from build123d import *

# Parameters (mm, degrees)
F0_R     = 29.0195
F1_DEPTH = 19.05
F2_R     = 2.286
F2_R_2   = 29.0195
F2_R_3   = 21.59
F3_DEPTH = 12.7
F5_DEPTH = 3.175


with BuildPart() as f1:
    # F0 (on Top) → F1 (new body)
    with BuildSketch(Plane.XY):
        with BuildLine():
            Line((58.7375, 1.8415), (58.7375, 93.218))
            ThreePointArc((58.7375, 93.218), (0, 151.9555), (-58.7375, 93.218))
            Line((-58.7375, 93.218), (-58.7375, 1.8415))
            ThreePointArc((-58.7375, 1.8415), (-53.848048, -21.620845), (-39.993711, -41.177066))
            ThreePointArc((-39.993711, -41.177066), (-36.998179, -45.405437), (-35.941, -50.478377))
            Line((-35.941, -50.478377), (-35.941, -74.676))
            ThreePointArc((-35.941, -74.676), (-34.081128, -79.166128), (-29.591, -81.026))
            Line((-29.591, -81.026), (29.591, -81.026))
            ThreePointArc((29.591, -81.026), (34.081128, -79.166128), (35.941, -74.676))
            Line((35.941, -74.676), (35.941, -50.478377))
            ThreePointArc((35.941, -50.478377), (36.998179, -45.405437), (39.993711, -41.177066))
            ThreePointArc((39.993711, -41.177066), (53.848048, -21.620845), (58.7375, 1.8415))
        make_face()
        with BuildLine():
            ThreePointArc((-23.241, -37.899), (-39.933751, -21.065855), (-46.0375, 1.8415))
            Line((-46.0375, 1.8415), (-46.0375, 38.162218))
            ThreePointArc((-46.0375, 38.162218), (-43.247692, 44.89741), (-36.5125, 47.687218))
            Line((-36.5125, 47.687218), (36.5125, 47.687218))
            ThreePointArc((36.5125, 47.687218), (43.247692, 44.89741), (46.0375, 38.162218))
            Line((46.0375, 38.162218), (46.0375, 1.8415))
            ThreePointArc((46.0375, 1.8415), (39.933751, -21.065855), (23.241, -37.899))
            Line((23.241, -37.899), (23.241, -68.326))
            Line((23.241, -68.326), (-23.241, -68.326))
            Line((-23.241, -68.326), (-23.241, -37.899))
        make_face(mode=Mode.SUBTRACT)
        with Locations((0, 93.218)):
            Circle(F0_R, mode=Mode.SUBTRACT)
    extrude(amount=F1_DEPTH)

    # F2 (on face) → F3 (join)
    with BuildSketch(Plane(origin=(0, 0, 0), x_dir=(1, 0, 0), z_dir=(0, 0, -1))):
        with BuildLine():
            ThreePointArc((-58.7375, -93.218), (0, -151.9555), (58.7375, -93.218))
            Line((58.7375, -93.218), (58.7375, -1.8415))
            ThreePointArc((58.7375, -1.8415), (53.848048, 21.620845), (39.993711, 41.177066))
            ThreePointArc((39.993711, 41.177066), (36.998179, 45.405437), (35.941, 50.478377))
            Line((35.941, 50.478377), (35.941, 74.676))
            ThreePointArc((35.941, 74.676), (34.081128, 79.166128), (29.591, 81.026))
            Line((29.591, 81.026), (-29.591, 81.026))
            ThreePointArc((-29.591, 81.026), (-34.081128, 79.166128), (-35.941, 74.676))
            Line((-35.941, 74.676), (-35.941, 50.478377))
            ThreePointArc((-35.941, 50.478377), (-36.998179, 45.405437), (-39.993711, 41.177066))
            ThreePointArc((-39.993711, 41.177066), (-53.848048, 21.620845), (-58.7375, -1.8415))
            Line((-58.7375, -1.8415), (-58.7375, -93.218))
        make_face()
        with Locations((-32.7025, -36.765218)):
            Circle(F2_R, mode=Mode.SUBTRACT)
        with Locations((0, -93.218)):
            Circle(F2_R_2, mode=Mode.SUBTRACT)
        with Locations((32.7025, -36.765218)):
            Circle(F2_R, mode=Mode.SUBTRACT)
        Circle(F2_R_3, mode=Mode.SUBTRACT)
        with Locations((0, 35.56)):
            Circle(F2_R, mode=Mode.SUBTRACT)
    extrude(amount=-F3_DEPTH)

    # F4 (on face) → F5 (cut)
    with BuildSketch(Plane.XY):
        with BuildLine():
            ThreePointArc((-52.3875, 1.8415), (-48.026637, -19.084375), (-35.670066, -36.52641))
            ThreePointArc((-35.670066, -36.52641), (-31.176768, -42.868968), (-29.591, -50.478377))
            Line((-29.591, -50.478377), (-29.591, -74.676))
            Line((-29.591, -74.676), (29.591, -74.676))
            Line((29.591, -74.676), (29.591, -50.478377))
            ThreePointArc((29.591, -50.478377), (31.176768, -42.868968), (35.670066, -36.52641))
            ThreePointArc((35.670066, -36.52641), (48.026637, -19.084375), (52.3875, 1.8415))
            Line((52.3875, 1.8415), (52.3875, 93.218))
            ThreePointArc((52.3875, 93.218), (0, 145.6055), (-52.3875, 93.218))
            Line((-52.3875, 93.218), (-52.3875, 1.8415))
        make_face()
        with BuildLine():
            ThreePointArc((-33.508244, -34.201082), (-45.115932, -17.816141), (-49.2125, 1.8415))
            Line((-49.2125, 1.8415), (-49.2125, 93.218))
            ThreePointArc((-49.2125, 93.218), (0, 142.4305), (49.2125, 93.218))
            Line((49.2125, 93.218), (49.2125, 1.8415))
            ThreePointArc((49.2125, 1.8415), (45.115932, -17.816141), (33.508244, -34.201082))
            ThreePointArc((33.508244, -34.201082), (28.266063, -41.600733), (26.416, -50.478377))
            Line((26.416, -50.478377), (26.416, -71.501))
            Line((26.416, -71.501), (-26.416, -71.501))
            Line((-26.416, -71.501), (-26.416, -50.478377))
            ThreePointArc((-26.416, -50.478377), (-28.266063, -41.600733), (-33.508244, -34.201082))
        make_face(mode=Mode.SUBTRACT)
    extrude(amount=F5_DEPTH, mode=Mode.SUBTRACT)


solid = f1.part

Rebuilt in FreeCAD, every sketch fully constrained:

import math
import FreeCAD as App
import Part
import Sketcher
from FreeCAD import Vector
Q = App.Units.Quantity

doc = App.newDocument("Part")
body = doc.addObject("PartDesign::Body", "Body")

sketch1 = doc.addObject("Sketcher::SketchObject", "Sketch")
body.addObject(sketch1)
sketch1.AttachmentSupport = (doc.XY_Plane, [""])
sketch1.MapMode = "FlatFace"
sketch1.addGeometry([
    Part.LineSegment(Vector(58.7375, 1.8415, 0), Vector(58.7375, 93.218, 0)),
    Part.ArcOfCircle(Part.Circle(Vector(0, 93.218, 0), Vector(0, 0, 1), 58.7375), math.radians(0), math.radians(180)),
    Part.LineSegment(Vector(-58.7375, 93.218, 0), Vector(-58.7375, 1.8415, 0)),
    Part.ArcOfCircle(Part.Circle(Vector(0.000002, 1.8415, 0), Vector(0, 0, 1), 58.737502), math.radians(-180), math.radians(-132.913144)),
    Part.ArcOfCircle(Part.Circle(Vector(-48.640998, -50.478376, 0), Vector(0, 0, 1), 12.699998), math.radians(-0.000002), math.radians(47.08686)),
    Part.LineSegment(Vector(-35.941, -50.478377, 0), Vector(-35.941, -74.676, 0)),
    Part.ArcOfCircle(Part.Circle(Vector(-29.591, -74.676, 0), Vector(0, 0, 1), 6.35), math.radians(-179.999998), math.radians(-90.000002)),
    Part.LineSegment(Vector(-29.591, -81.026, 0), Vector(29.591, -81.026, 0)),
    Part.ArcOfCircle(Part.Circle(Vector(29.591, -74.676, 0), Vector(0, 0, 1), 6.35), math.radians(-89.999998), math.radians(-0.000002)),
    Part.LineSegment(Vector(35.941, -74.676, 0), Vector(35.941, -50.478377, 0)),
    Part.ArcOfCircle(Part.Circle(Vector(48.640998, -50.478376, 0), Vector(0, 0, 1), 12.699998), math.radians(132.91314), math.radians(180.000002)),
    Part.ArcOfCircle(Part.Circle(Vector(-0.000002, 1.8415, 0), Vector(0, 0, 1), 58.737502), math.radians(-47.086856), math.radians(0)),
    Part.LineSegment(Vector(-23.241, -68.326, 0), Vector(-23.241, -37.899, 0)),
    Part.ArcOfCircle(Part.Circle(Vector(0.000002, 1.841501, 0), Vector(0, 0, 1), 46.037502), math.radians(-179.999999), math.radians(-120.319909)),
    Part.LineSegment(Vector(-46.0375, 1.8415, 0), Vector(-46.0375, 38.162218, 0)),
    Part.ArcOfCircle(Part.Circle(Vector(-36.5125, 38.162218, 0), Vector(0, 0, 1), 9.525), math.radians(90.000002), math.radians(179.999998)),
    Part.LineSegment(Vector(-36.5125, 47.687218, 0), Vector(36.5125, 47.687218, 0)),
    Part.ArcOfCircle(Part.Circle(Vector(36.5125, 38.162218, 0), Vector(0, 0, 1), 9.525), math.radians(0.000002), math.radians(89.999998)),
    Part.LineSegment(Vector(46.0375, 38.162218, 0), Vector(46.0375, 1.8415, 0)),
    Part.ArcOfCircle(Part.Circle(Vector(-0.000002, 1.841501, 0), Vector(0, 0, 1), 46.037502), math.radians(-59.680091), math.radians(-0.000001)),
    Part.LineSegment(Vector(23.241, -37.899, 0), Vector(23.241, -68.326, 0)),
    Part.LineSegment(Vector(23.241, -68.326, 0), Vector(-23.241, -68.326, 0)),
    Part.Circle(Vector(0, 93.218, 0), Vector(0, 0, 1), 29.0195),
], False)
sketch1.addConstraint([
    Sketcher.Constraint("Tangent", 0, 2, 1, 1),
    Sketcher.Constraint("Tangent", 1, 2, 2, 1),
    Sketcher.Constraint("Tangent", 2, 2, 3, 1),
    Sketcher.Constraint("Tangent", 3, 2, 4, 2),
    Sketcher.Constraint("Tangent", 4, 1, 5, 1),
    Sketcher.Constraint("Tangent", 5, 2, 6, 1),
    Sketcher.Constraint("Tangent", 6, 2, 7, 1),
    Sketcher.Constraint("Tangent", 7, 2, 8, 1),
    Sketcher.Constraint("Tangent", 8, 2, 9, 1),
    Sketcher.Constraint("Tangent", 9, 2, 10, 2),
    Sketcher.Constraint("Tangent", 10, 1, 11, 1),
    Sketcher.Constraint("Tangent", 11, 2, 0, 1),
    Sketcher.Constraint("Coincident", 12, 2, 13, 2),
    Sketcher.Constraint("Tangent", 13, 1, 14, 1),
    Sketcher.Constraint("Tangent", 14, 2, 15, 2),
    Sketcher.Constraint("Tangent", 15, 1, 16, 1),
    Sketcher.Constraint("Tangent", 16, 2, 17, 2),
    Sketcher.Constraint("Tangent", 17, 1, 18, 1),
    Sketcher.Constraint("Tangent", 18, 2, 19, 2),
    Sketcher.Constraint("Coincident", 19, 1, 20, 1),
    Sketcher.Constraint("Coincident", 20, 2, 21, 1),
    Sketcher.Constraint("Coincident", 21, 2, 12, 1),
    Sketcher.Constraint("Vertical", 0),
    Sketcher.Constraint("Vertical", 2),
    Sketcher.Constraint("Vertical", 5),
    Sketcher.Constraint("Horizontal", 7),
    Sketcher.Constraint("Vertical", 9),
    Sketcher.Constraint("Vertical", 12),
    Sketcher.Constraint("Vertical", 14),
    Sketcher.Constraint("Horizontal", 16),
    Sketcher.Constraint("Vertical", 18),
    Sketcher.Constraint("Vertical", 20),
    Sketcher.Constraint("Horizontal", 21),
    Sketcher.Constraint("Coincident", 11, 3, 3, 3),
    Sketcher.Constraint("Coincident", 13, 3, 3, 3),
    Sketcher.Constraint("Coincident", 19, 3, 3, 3),
    Sketcher.Constraint("Coincident", 22, 3, 1, 3),
    Sketcher.Constraint("Equal", 1, 3),
    Sketcher.Constraint("Equal", 6, 8),
    Sketcher.Constraint("Equal", 4, 10),
    Sketcher.Constraint("Equal", 15, 17),
    Sketcher.Constraint("Equal", 13, 19),
    Sketcher.Constraint("Symmetric", 4, 3, 10, 3, -2),
    Sketcher.Constraint("Horizontal", 12, 2, 19, 1),
    Sketcher.Constraint("Radius", 4, Q("0.4999999 in")),
    Sketcher.Constraint("Radius", 6, Q("0.25 in")),
    Sketcher.Constraint("Diameter", 22, Q("2.285 in")),
    Sketcher.Constraint("Radius", 1, Q("2.3125 in")),
    Sketcher.Constraint("Radius", 13, Q("1.8125001 in")),
    Sketcher.Constraint("Radius", 15, Q("0.375 in")),
    Sketcher.Constraint("DistanceX", 4, 3, 12, 2, Q("0.9999999 in")),
    Sketcher.Constraint("DistanceX", 7, 1, 7, 2, Q("2.33 in")),
    Sketcher.Constraint("DistanceY", 7, 2, 20, 2, Q("0.5 in")),
    Sketcher.Constraint("DistanceY", -1, 1, 1, 3, Q("3.67 in")),
    Sketcher.Constraint("DistanceY", 6, 3, -1, 1, Q("2.94 in")),
    Sketcher.Constraint("DistanceY", 0, 1, 0, 2, Q("3.5975 in")),
    Sketcher.Constraint("DistanceY", 14, 1, 14, 2, 36.320718),
])
pad1 = doc.addObject("PartDesign::Pad", "Pad")
body.addObject(pad1)
pad1.Profile = sketch1
pad1.Length = Q("0.75 in")

sketch2 = doc.addObject("Sketcher::SketchObject", "Sketch001")
body.addObject(sketch2)
sketch2.AttachmentSupport = (doc.XY_Plane, [""])
sketch2.MapMode = "FlatFace"
sketch2.addGeometry([
    Part.ArcOfCircle(Part.Circle(Vector(0, 93.218, 0), Vector(0, 0, 1), 58.7375), math.radians(0), math.radians(180)),
    Part.LineSegment(Vector(58.7375, 93.218, 0), Vector(58.7375, 1.8415, 0)),
    Part.ArcOfCircle(Part.Circle(Vector(-0.000002, 1.8415, 0), Vector(0, 0, 1), 58.737502), math.radians(-47.086856), math.radians(0)),
    Part.ArcOfCircle(Part.Circle(Vector(48.640998, -50.478376, 0), Vector(0, 0, 1), 12.699998), math.radians(132.91314), math.radians(180.000002)),
    Part.LineSegment(Vector(35.941, -50.478377, 0), Vector(35.941, -74.676, 0)),
    Part.ArcOfCircle(Part.Circle(Vector(29.591, -74.676, 0), Vector(0, 0, 1), 6.35), math.radians(-89.999998), math.radians(-0.000002)),
    Part.LineSegment(Vector(29.591, -81.026, 0), Vector(-29.591, -81.026, 0)),
    Part.ArcOfCircle(Part.Circle(Vector(-29.591, -74.676, 0), Vector(0, 0, 1), 6.35), math.radians(-179.999998), math.radians(-90.000002)),
    Part.LineSegment(Vector(-35.941, -74.676, 0), Vector(-35.941, -50.478377, 0)),
    Part.ArcOfCircle(Part.Circle(Vector(-48.640998, -50.478376, 0), Vector(0, 0, 1), 12.699998), math.radians(-0.000002), math.radians(47.08686)),
    Part.ArcOfCircle(Part.Circle(Vector(0.000002, 1.8415, 0), Vector(0, 0, 1), 58.737502), math.radians(-180), math.radians(-132.913144)),
    Part.LineSegment(Vector(-58.7375, 1.8415, 0), Vector(-58.7375, 93.218, 0)),
    Part.Circle(Vector(0, 93.218, 0), Vector(0, 0, 1), 29.0195),
    Part.Circle(Vector(-32.7025, 36.765218, 0), Vector(0, 0, 1), 2.286),
    Part.Circle(Vector(32.7025, 36.765218, 0), Vector(0, 0, 1), 2.286),
    Part.Circle(Vector(0, 0, 0), Vector(0, 0, 1), 21.59),
    Part.Circle(Vector(0, -35.56, 0), Vector(0, 0, 1), 2.286),
], False)
sketch2.addConstraint([
    Sketcher.Constraint("Tangent", 0, 1, 1, 1),
    Sketcher.Constraint("Tangent", 1, 2, 2, 2),
    Sketcher.Constraint("Tangent", 2, 1, 3, 1),
    Sketcher.Constraint("Tangent", 3, 2, 4, 1),
    Sketcher.Constraint("Tangent", 4, 2, 5, 2),
    Sketcher.Constraint("Tangent", 5, 1, 6, 1),
    Sketcher.Constraint("Tangent", 6, 2, 7, 2),
    Sketcher.Constraint("Tangent", 7, 1, 8, 1),
    Sketcher.Constraint("Tangent", 8, 2, 9, 1),
    Sketcher.Constraint("Tangent", 9, 2, 10, 2),
    Sketcher.Constraint("Tangent", 10, 1, 11, 1),
    Sketcher.Constraint("Tangent", 11, 2, 0, 2),
    Sketcher.Constraint("Vertical", 1),
    Sketcher.Constraint("Vertical", 4),
    Sketcher.Constraint("Horizontal", 6),
    Sketcher.Constraint("Vertical", 8),
    Sketcher.Constraint("Vertical", 11),
    Sketcher.Constraint("Coincident", 15, 3, -1, 1),
    Sketcher.Constraint("Coincident", 10, 3, 2, 3),
    Sketcher.Constraint("Coincident", 12, 3, 0, 3),
    Sketcher.Constraint("Equal", 0, 2),
    Sketcher.Constraint("Equal", 5, 7),
    Sketcher.Constraint("Equal", 3, 9),
    Sketcher.Constraint("Equal", 13, 14),
    Sketcher.Constraint("Equal", 14, 16),
    Sketcher.Constraint("Symmetric", 3, 3, 9, 3, -2),
    Sketcher.Constraint("Symmetric", 13, 3, 14, 3, -2),
    Sketcher.Constraint("PointOnObject", 16, 3, -2),
    Sketcher.Constraint("Diameter", 15, Q("1.7 in")),
    Sketcher.Constraint("Radius", 3, Q("0.4999999 in")),
    Sketcher.Constraint("Diameter", 13, Q("0.18 in")),
    Sketcher.Constraint("Radius", 5, Q("0.25 in")),
    Sketcher.Constraint("Diameter", 12, Q("2.285 in")),
    Sketcher.Constraint("Radius", 0, Q("2.3125 in")),
    Sketcher.Constraint("DistanceX", 6, 2, 6, 1, Q("2.33 in")),
    Sketcher.Constraint("DistanceY", 16, 3, -1, 1, Q("1.4 in")),
    Sketcher.Constraint("DistanceX", 13, 3, 0, 1, Q("3.6 in")),
    Sketcher.Constraint("DistanceY", -1, 1, 0, 3, Q("3.67 in")),
    Sketcher.Constraint("DistanceY", 5, 3, -1, 1, Q("2.94 in")),
    Sketcher.Constraint("DistanceY", 1, 2, 1, 1, Q("3.5975 in")),
    Sketcher.Constraint("DistanceY", -1, 1, 13, 3, 36.765218),
])
pad2 = doc.addObject("PartDesign::Pad", "Pad001")
body.addObject(pad2)
pad2.Profile = sketch2
pad2.Length = Q("0.5 in")

sketch3 = doc.addObject("Sketcher::SketchObject", "Sketch002")
body.addObject(sketch3)
sketch3.AttachmentSupport = (doc.XY_Plane, [""])
sketch3.MapMode = "FlatFace"
sketch3.addGeometry([
    Part.ArcOfCircle(Part.Circle(Vector(0.000004, 1.841502, 0), Vector(0, 0, 1), 52.387504), math.radians(-179.999998), math.radians(-132.913144)),
    Part.ArcOfCircle(Part.Circle(Vector(-48.641001, -50.478377, 0), Vector(0, 0, 1), 19.050001), math.radians(-0.000001), math.radians(47.086853)),
    Part.LineSegment(Vector(-29.591, -50.478377, 0), Vector(-29.591, -74.676, 0)),
    Part.LineSegment(Vector(-29.591, -74.676, 0), Vector(29.591, -74.676, 0)),
    Part.LineSegment(Vector(29.591, -74.676, 0), Vector(29.591, -50.478377, 0)),
    Part.ArcOfCircle(Part.Circle(Vector(48.641001, -50.478377, 0), Vector(0, 0, 1), 19.050001), math.radians(132.913147), math.radians(180.000001)),
    Part.ArcOfCircle(Part.Circle(Vector(-0.000004, 1.841502, 0), Vector(0, 0, 1), 52.387504), math.radians(-47.086856), math.radians(-0.000002)),
    Part.LineSegment(Vector(52.3875, 1.8415, 0), Vector(52.3875, 93.218, 0)),
    Part.ArcOfCircle(Part.Circle(Vector(0, 93.218, 0), Vector(0, 0, 1), 52.3875), math.radians(0), math.radians(180)),
    Part.LineSegment(Vector(-52.3875, 93.218, 0), Vector(-52.3875, 1.8415, 0)),
    Part.ArcOfCircle(Part.Circle(Vector(-48.641003, -50.478378, 0), Vector(0, 0, 1), 22.225003), math.radians(0.000002), math.radians(47.086852)),
    Part.ArcOfCircle(Part.Circle(Vector(-0.000003, 1.841499, 0), Vector(0, 0, 1), 49.212497), math.radians(179.999999), math.radians(227.086859)),
    Part.LineSegment(Vector(-49.2125, 1.8415, 0), Vector(-49.2125, 93.218, 0)),
    Part.ArcOfCircle(Part.Circle(Vector(0, 93.218, 0), Vector(0, 0, 1), 49.2125), math.radians(0), math.radians(180)),
    Part.LineSegment(Vector(49.2125, 93.218, 0), Vector(49.2125, 1.8415, 0)),
    Part.ArcOfCircle(Part.Circle(Vector(0.000003, 1.841499, 0), Vector(0, 0, 1), 49.212497), math.radians(-47.086859), math.radians(0.000001)),
    Part.ArcOfCircle(Part.Circle(Vector(48.641003, -50.478378, 0), Vector(0, 0, 1), 22.225003), math.radians(132.913148), math.radians(179.999998)),
    Part.LineSegment(Vector(26.416, -50.478377, 0), Vector(26.416, -71.501, 0)),
    Part.LineSegment(Vector(26.416, -71.501, 0), Vector(-26.416, -71.501, 0)),
    Part.LineSegment(Vector(-26.416, -71.501, 0), Vector(-26.416, -50.478377, 0)),
], False)
sketch3.addConstraint([
    Sketcher.Constraint("Tangent", 0, 2, 1, 2),
    Sketcher.Constraint("Tangent", 1, 1, 2, 1),
    Sketcher.Constraint("Coincident", 2, 2, 3, 1),
    Sketcher.Constraint("Coincident", 3, 2, 4, 1),
    Sketcher.Constraint("Tangent", 4, 2, 5, 2),
    Sketcher.Constraint("Tangent", 5, 1, 6, 1),
    Sketcher.Constraint("Tangent", 6, 2, 7, 1),
    Sketcher.Constraint("Tangent", 7, 2, 8, 1),
    Sketcher.Constraint("Tangent", 8, 2, 9, 1),
    Sketcher.Constraint("Tangent", 9, 2, 0, 1),
    Sketcher.Constraint("Tangent", 10, 2, 11, 2),
    Sketcher.Constraint("Tangent", 11, 1, 12, 1),
    Sketcher.Constraint("Tangent", 12, 2, 13, 2),
    Sketcher.Constraint("Tangent", 13, 1, 14, 1),
    Sketcher.Constraint("Tangent", 14, 2, 15, 2),
    Sketcher.Constraint("Tangent", 15, 1, 16, 1),
    Sketcher.Constraint("Tangent", 16, 2, 17, 1),
    Sketcher.Constraint("Coincident", 17, 2, 18, 1),
    Sketcher.Constraint("Coincident", 18, 2, 19, 1),
    Sketcher.Constraint("Tangent", 19, 2, 10, 1),
    Sketcher.Constraint("Vertical", 2),
    Sketcher.Constraint("Horizontal", 3),
    Sketcher.Constraint("Vertical", 4),
    Sketcher.Constraint("Vertical", 7),
    Sketcher.Constraint("Vertical", 9),
    Sketcher.Constraint("Vertical", 12),
    Sketcher.Constraint("Vertical", 14),
    Sketcher.Constraint("Vertical", 17),
    Sketcher.Constraint("Horizontal", 18),
    Sketcher.Constraint("Vertical", 19),
    Sketcher.Constraint("Coincident", 6, 3, 0, 3),
    Sketcher.Constraint("Coincident", 10, 3, 1, 3),
    Sketcher.Constraint("Coincident", 11, 3, 0, 3),
    Sketcher.Constraint("Coincident", 13, 3, 8, 3),
    Sketcher.Constraint("Coincident", 15, 3, 0, 3),
    Sketcher.Constraint("Coincident", 16, 3, 5, 3),
    Sketcher.Constraint("Equal", 1, 5),
    Sketcher.Constraint("Equal", 0, 6),
    Sketcher.Constraint("Symmetric", 1, 3, 5, 3, -2),
    Sketcher.Constraint("Radius", 1, Q("0.75 in")),
    Sketcher.Constraint("Radius", 0, Q("2.0625001 in")),
    Sketcher.Constraint("Radius", 10, Q("0.8750001 in")),
    Sketcher.Constraint("DistanceX", 3, 1, 3, 2, Q("2.33 in")),
    Sketcher.Constraint("DistanceY", -1, 1, 8, 3, Q("3.67 in")),
    Sketcher.Constraint("DistanceY", 2, 2, -1, 1, Q("2.94 in")),
    Sketcher.Constraint("DistanceY", 7, 1, 7, 2, Q("3.5975 in")),
    Sketcher.Constraint("DistanceY", 17, 2, -1, 1, Q("2.815 in")),
])
pocket1 = doc.addObject("PartDesign::Pocket", "Pocket")
body.addObject(pocket1)
pocket1.Profile = sketch3
pocket1.Length = Q("0.125 in")
pocket1.Reversed = True

doc.recompute()
